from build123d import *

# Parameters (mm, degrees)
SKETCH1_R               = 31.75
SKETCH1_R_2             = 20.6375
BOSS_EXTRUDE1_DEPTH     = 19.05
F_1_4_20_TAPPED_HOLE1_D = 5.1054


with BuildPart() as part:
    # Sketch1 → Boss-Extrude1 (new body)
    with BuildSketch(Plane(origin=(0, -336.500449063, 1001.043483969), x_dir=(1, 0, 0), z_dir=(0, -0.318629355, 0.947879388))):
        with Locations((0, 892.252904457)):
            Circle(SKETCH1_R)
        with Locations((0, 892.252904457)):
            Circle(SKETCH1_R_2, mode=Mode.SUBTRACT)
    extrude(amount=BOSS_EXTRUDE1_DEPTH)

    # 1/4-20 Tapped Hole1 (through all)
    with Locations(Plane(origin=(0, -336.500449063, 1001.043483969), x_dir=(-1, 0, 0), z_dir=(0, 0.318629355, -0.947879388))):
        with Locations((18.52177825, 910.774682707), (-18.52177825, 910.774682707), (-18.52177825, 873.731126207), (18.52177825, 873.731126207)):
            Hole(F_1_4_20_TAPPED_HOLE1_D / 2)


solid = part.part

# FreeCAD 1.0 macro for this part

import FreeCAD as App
import Part
import Sketcher

V = App.Vector
Q = App.Units.Quantity

doc = App.newDocument("Part")
params = doc.addObject("Spreadsheet::Sheet", "Params")
for row, (alias, value) in enumerate([
    ("sketch1_diameter", "2.5 in"),
    ("sketch1_diameter2", "1.625 in"),
    ("pad1_length", "0.75 in"),
    ("sketch2_diameter", "0.201 in"),
    ("hole_diameter", "0.201 in"),
], start=1):
    params.set(f"A{row}", alias)
    params.set(f"B{row}", "=" + value)
    params.setAlias(f"B{row}", alias)

body = doc.addObject("PartDesign::Body", "Body")

# Sketch on an angled plane
sketch1 = doc.addObject("Sketcher::SketchObject", "Sketch")
body.addObject(sketch1)
sketch1.Placement = App.Placement(V(0, -336.500449, 1001.043484), App.Rotation(V(1, 0, 0), V(0, 0.947879388, 0.318629355), V(0, -0.318629355, 0.947879388), "ZXY"))
sketch1.addGeometry([
    Part.Circle(V(0, 892, 0), V(0, 0, 1), 32),
    Part.Circle(V(0, 892, 0), V(0, 0, 1), 21),
], False)
sketch1.addConstraint([
    Sketcher.Constraint("Coincident", 1, 3, 0, 3),
    Sketcher.Constraint("PointOnObject", 0, 3, -2),
    Sketcher.Constraint("Diameter", 0, Q("2.5 in")),
    Sketcher.Constraint("Diameter", 1, Q("1.625 in")),
    Sketcher.Constraint("DistanceY", -1, 1, 0, 3, 892.252905),
])
sketch1.setExpression("Constraints[2]", "Params.sketch1_diameter")
sketch1.setExpression("Constraints[3]", "Params.sketch1_diameter2")
pad1 = doc.addObject("PartDesign::Pad", "Pad")
body.addObject(pad1)
pad1.Profile = sketch1
pad1.setExpression("Length", "Params.pad1_length")

# Sketch on an angled plane
sketch2 = doc.addObject("Sketcher::SketchObject", "Sketch001")
body.addObject(sketch2)
sketch2.Placement = App.Placement(V(0, -336.500449, 1001.043484), App.Rotation(V(-1, 0, 0), V(0, 0.947879388, 0.318629355), V(0, 0.318629355, -0.947879388), "ZXY"))
sketch2.addGeometry([
    Part.Circle(V(18.5, 910.8, 0), V(0, 0, 1), 2.6),
    Part.Circle(V(-18.5, 910.8, 0), V(0, 0, 1), 2.6),
    Part.Circle(V(-18.5, 873.7, 0), V(0, 0, 1), 2.6),
    Part.Circle(V(18.5, 873.7, 0), V(0, 0, 1), 2.6),
], False)
sketch2.addConstraint([
    Sketcher.Constraint("Equal", 0, 1),
    Sketcher.Constraint("Equal", 1, 2),
    Sketcher.Constraint("Equal", 2, 3),
    Sketcher.Constraint("Symmetric", 0, 3, 1, 3, -2),
    Sketcher.Constraint("Symmetric", 2, 3, 3, 3, -2),
    Sketcher.Constraint("Vertical", 1, 3, 2, 3),
    Sketcher.Constraint("Diameter", 0, Q("0.201 in")),
    Sketcher.Constraint("DistanceX", -1, 1, 0, 3, 18.521778),
    Sketcher.Constraint("DistanceY", -1, 1, 0, 3, 910.774683),
    Sketcher.Constraint("DistanceY", -1, 1, 2, 3, 873.731126),
])
sketch2.setExpression("Constraints[6]", "Params.sketch2_diameter")
doc.recompute()
hole = doc.addObject("PartDesign::Hole", "Hole")
body.addObject(hole)
hole.Profile = sketch2
hole.ThreadType = "None"
hole.setExpression("Diameter", "Params.hole_diameter")
hole.DepthType = "ThroughAll"

doc.recompute()
